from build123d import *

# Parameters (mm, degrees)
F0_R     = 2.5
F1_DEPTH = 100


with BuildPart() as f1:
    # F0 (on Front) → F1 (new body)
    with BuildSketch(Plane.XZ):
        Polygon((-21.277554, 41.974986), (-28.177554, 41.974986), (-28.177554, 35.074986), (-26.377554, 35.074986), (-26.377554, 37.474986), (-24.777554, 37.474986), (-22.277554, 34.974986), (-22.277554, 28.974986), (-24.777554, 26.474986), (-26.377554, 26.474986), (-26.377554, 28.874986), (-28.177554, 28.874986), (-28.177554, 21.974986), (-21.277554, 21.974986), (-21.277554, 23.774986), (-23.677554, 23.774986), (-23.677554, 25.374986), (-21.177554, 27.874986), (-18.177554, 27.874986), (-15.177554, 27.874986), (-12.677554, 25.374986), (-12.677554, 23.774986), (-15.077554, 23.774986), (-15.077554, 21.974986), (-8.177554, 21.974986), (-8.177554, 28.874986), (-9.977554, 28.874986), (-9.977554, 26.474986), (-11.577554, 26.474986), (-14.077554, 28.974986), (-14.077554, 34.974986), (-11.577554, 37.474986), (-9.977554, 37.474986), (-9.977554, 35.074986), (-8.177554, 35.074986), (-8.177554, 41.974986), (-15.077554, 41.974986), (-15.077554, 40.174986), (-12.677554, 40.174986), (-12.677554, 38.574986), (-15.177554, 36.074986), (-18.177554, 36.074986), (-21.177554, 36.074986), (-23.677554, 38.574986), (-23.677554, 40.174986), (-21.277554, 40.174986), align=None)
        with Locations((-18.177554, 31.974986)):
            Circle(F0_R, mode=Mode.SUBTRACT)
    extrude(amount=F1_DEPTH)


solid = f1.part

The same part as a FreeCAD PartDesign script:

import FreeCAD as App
import Part
import Sketcher

V = App.Vector


def add_polygon(sketch, points):
    """Adds a closed chain of lines whose ends are joined by coincident constraints."""
    first, n = sketch.GeometryCount, len(points)
    for a, b in zip(points, points[1:] + points[:1]):
        sketch.addGeometry(Part.LineSegment(App.Vector(*a, 0), App.Vector(*b, 0)), False)
    for i in range(n):
        sketch.addConstraint(Sketcher.Constraint("Coincident", first + i, 2, first + (i + 1) % n, 1))

doc = App.newDocument("Part")
body = doc.addObject("PartDesign::Body", "Body")

sketch1 = body.newObject("Sketcher::SketchObject", "Sketch")
sketch1.AttachmentSupport = (doc.getObject("XZ_Plane"), [""])
sketch1.MapMode = "FlatFace"
add_polygon(sketch1, [(-21.3, 42), (-28.2, 42), (-28.2, 35.1), (-26.4, 35.1), (-26.4, 37.5), (-24.8, 37.5), (-22.3, 35), (-22.3, 29), (-24.8, 26.5), (-26.4, 26.5), (-26.4, 28.9), (-28.2, 28.9), (-28.2, 22), (-21.3, 22), (-21.3, 23.8), (-23.7, 23.8), (-23.7, 25.4), (-21.2, 27.9), (-15.2, 27.9), (-12.7, 25.4), (-12.7, 23.8), (-15.1, 23.8), (-15.1, 22), (-8.2, 22), (-8.2, 28.9), (-10, 28.9), (-10, 26.5), (-11.6, 26.5), (-14.1, 29), (-14.1, 35), (-11.6, 37.5), (-10, 37.5), (-10, 35.1), (-8.2, 35.1), (-8.2, 42), (-15.1, 42), (-15.1, 40.2), (-12.7, 40.2), (-12.7, 38.6), (-15.2, 36.1), (-21.2, 36.1), (-23.7, 38.6), (-23.7, 40.2), (-21.3, 40.2)])
sketch1.addGeometry(Part.Circle(V(-18.2, 32, 0), V(0, 0, 1), 2.5), False)
sketch1.addConstraint(Sketcher.Constraint("Horizontal", 0))
sketch1.addConstraint(Sketcher.Constraint("Vertical", 1))
sketch1.addConstraint(Sketcher.Constraint("Horizontal", 2))
sketch1.addConstraint(Sketcher.Constraint("Vertical", 3))
sketch1.addConstraint(Sketcher.Constraint("Horizontal", 4))
sketch1.addConstraint(Sketcher.Constraint("Vertical", 6))
sketch1.addConstraint(Sketcher.Constraint("Horizontal", 8))
sketch1.addConstraint(Sketcher.Constraint("Vertical", 9))
sketch1.addConstraint(Sketcher.Constraint("Horizontal", 10))
sketch1.addConstraint(Sketcher.Constraint("Vertical", 11))
sketch1.addConstraint(Sketcher.Constraint("Horizontal", 12))
sketch1.addConstraint(Sketcher.Constraint("Vertical", 13))
sketch1.addConstraint(Sketcher.Constraint("Horizontal", 14))
sketch1.addConstraint(Sketcher.Constraint("Vertical", 15))
sketch1.addConstraint(Sketcher.Constraint("Horizontal", 17))
sketch1.addConstraint(Sketcher.Constraint("Vertical", 19))
sketch1.addConstraint(Sketcher.Constraint("Horizontal", 20))
sketch1.addConstraint(Sketcher.Constraint("Vertical", 21))
sketch1.addConstraint(Sketcher.Constraint("Horizontal", 22))
sketch1.addConstraint(Sketcher.Constraint("Vertical", 23))
sketch1.addConstraint(Sketcher.Constraint("Horizontal", 24))
sketch1.addConstraint(Sketcher.Constraint("Vertical", 25))
sketch1.addConstraint(Sketcher.Constraint("Horizontal", 26))
sketch1.addConstraint(Sketcher.Constraint("Vertical", 28))
sketch1.addConstraint(Sketcher.Constraint("Horizontal", 30))
sketch1.addConstraint(Sketcher.Constraint("Vertical", 31))
sketch1.addConstraint(Sketcher.Constraint("Horizontal", 32))
sketch1.addConstraint(Sketcher.Constraint("Vertical", 33))
sketch1.addConstraint(Sketcher.Constraint("Horizontal", 34))
sketch1.addConstraint(Sketcher.Constraint("Vertical", 35))
sketch1.addConstraint(Sketcher.Constraint("Horizontal", 36))
sketch1.addConstraint(Sketcher.Constraint("Vertical", 37))
sketch1.addConstraint(Sketcher.Constraint("Horizontal", 39))
sketch1.addConstraint(Sketcher.Constraint("Vertical", 41))
sketch1.addConstraint(Sketcher.Constraint("Horizontal", 42))
sketch1.addConstraint(Sketcher.Constraint("Vertical", 43))
sketch1.addConstraint(Sketcher.Constraint("Perpendicular", 5, 7))
sketch1.addConstraint(Sketcher.Constraint("Parallel", 7, 16))
sketch1.addConstraint(Sketcher.Constraint("Perpendicular", 16, 18))
sketch1.addConstraint(Sketcher.Constraint("Parallel", 18, 27))
sketch1.addConstraint(Sketcher.Constraint("Perpendicular", 27, 29))
sketch1.addConstraint(Sketcher.Constraint("Parallel", 29, 38))
sketch1.addConstraint(Sketcher.Constraint("Perpendicular", 38, 40))
sketch1.addConstraint(Sketcher.Constraint("Horizontal", 15, 2, 18, 2))
sketch1.addConstraint(Sketcher.Constraint("Horizontal", 14, 2, 19, 2))
sketch1.addConstraint(Sketcher.Constraint("Horizontal", 12, 2, 21, 2))
sketch1.addConstraint(Sketcher.Constraint("Horizontal", 10, 2, 23, 2))
sketch1.addConstraint(Sketcher.Constraint("Horizontal", 8, 2, 25, 2))
sketch1.addConstraint(Sketcher.Constraint("Horizontal", 6, 2, 27, 2))
sketch1.addConstraint(Sketcher.Constraint("Horizontal", 5, 2, 28, 2))
sketch1.addConstraint(Sketcher.Constraint("Horizontal", 4, 2, 29, 2))
sketch1.addConstraint(Sketcher.Constraint("Horizontal", 2, 2, 31, 2))
sketch1.addConstraint(Sketcher.Constraint("Horizontal", 0, 2, 33, 2))
sketch1.addConstraint(Sketcher.Constraint("Horizontal", 37, 2, 40, 2))
sketch1.addConstraint(Sketcher.Constraint("Horizontal", 36, 2, 41, 2))
sketch1.addConstraint(Sketcher.Constraint("Vertical", 4, 2, 7, 2))
sketch1.addConstraint(Sketcher.Constraint("Vertical", 3, 2, 8, 2))
sketch1.addConstraint(Sketcher.Constraint("Vertical", 1, 2, 10, 2))
sketch1.addConstraint(Sketcher.Constraint("Vertical", 26, 2, 29, 2))
sketch1.addConstraint(Sketcher.Constraint("Vertical", 25, 2, 30, 2))
sketch1.addConstraint(Sketcher.Constraint("Vertical", 23, 2, 32, 2))
sketch1.addConstraint(Sketcher.Constraint("Vertical", 21, 2, 34, 2))
sketch1.addConstraint(Sketcher.Constraint("Vertical", 19, 2, 36, 2))
sketch1.addConstraint(Sketcher.Constraint("Vertical", 17, 2, 38, 2))
sketch1.addConstraint(Sketcher.Constraint("Vertical", 16, 2, 39, 2))
sketch1.addConstraint(Sketcher.Constraint("Vertical", 13, 2, 42, 2))
sketch1.addConstraint(Sketcher.Constraint("Equal", 14, 20))
sketch1.addConstraint(Sketcher.Constraint("Equal", 12, 22))
sketch1.addConstraint(Sketcher.Constraint("Equal", 10, 24))
sketch1.addConstraint(Sketcher.Constraint("Equal", 8, 26))
sketch1.addConstraint(Sketcher.Constraint("Equal", 34, 1))
sketch1.addConstraint(Sketcher.Constraint("Equal", 42, 3))
sketch1.addConstraint(Sketcher.Constraint("Equal", 39, 6))
sketch1.addConstraint(Sketcher.Constraint("Equal", 3, 9))
sketch1.addConstraint(Sketcher.Constraint("Equal", 1, 11))
sketch1.addConstraint(Sketcher.Constraint("Equal", 32, 13))
sketch1.addConstraint(Sketcher.Constraint("Equal", 30, 15))
sketch1.addConstraint(Sketcher.Constraint("Equal", 21, 35))
sketch1.addConstraint(Sketcher.Constraint("Equal", 19, 37))
sketch1.addConstraint(Sketcher.Constraint("Equal", 7, 16))
sketch1.addConstraint(Sketcher.Constraint("Diameter", 44, 5.0))
sketch1.addConstraint(Sketcher.Constraint("DistanceX", 17, 1, 17, 2, 6.0))
sketch1.addConstraint(Sketcher.Constraint("DistanceX", 0, 2, 0, 1, 6.9))
sketch1.addConstraint(Sketcher.Constraint("DistanceX", 2, 1, 2, 2, 1.8))
sketch1.addConstraint(Sketcher.Constraint("DistanceX", 4, 1, 4, 2, 1.6))
sketch1.addConstraint(Sketcher.Constraint("DistanceX", 14, 2, 14, 1, 2.4))
sketch1.addConstraint(Sketcher.Constraint("DistanceX", 0, 2, 44, 3, 10.0))
sketch1.addConstraint(Sketcher.Constraint("DistanceY", 44, 3, 0, 2, 10.0))
sketch1.addConstraint(Sketcher.Constraint("DistanceY", 44, 3, 5, 2, 3.0))
sketch1.addConstraint(Sketcher.Constraint("DistanceX", 44, 3, -1, 1, 18.177554))
sketch1.addConstraint(Sketcher.Constraint("DistanceY", -1, 1, 44, 3, 31.974986))
pad1 = body.newObject("PartDesign::Pad", "Pad")
pad1.Profile = sketch1
pad1.Length = 100

doc.recompute()
